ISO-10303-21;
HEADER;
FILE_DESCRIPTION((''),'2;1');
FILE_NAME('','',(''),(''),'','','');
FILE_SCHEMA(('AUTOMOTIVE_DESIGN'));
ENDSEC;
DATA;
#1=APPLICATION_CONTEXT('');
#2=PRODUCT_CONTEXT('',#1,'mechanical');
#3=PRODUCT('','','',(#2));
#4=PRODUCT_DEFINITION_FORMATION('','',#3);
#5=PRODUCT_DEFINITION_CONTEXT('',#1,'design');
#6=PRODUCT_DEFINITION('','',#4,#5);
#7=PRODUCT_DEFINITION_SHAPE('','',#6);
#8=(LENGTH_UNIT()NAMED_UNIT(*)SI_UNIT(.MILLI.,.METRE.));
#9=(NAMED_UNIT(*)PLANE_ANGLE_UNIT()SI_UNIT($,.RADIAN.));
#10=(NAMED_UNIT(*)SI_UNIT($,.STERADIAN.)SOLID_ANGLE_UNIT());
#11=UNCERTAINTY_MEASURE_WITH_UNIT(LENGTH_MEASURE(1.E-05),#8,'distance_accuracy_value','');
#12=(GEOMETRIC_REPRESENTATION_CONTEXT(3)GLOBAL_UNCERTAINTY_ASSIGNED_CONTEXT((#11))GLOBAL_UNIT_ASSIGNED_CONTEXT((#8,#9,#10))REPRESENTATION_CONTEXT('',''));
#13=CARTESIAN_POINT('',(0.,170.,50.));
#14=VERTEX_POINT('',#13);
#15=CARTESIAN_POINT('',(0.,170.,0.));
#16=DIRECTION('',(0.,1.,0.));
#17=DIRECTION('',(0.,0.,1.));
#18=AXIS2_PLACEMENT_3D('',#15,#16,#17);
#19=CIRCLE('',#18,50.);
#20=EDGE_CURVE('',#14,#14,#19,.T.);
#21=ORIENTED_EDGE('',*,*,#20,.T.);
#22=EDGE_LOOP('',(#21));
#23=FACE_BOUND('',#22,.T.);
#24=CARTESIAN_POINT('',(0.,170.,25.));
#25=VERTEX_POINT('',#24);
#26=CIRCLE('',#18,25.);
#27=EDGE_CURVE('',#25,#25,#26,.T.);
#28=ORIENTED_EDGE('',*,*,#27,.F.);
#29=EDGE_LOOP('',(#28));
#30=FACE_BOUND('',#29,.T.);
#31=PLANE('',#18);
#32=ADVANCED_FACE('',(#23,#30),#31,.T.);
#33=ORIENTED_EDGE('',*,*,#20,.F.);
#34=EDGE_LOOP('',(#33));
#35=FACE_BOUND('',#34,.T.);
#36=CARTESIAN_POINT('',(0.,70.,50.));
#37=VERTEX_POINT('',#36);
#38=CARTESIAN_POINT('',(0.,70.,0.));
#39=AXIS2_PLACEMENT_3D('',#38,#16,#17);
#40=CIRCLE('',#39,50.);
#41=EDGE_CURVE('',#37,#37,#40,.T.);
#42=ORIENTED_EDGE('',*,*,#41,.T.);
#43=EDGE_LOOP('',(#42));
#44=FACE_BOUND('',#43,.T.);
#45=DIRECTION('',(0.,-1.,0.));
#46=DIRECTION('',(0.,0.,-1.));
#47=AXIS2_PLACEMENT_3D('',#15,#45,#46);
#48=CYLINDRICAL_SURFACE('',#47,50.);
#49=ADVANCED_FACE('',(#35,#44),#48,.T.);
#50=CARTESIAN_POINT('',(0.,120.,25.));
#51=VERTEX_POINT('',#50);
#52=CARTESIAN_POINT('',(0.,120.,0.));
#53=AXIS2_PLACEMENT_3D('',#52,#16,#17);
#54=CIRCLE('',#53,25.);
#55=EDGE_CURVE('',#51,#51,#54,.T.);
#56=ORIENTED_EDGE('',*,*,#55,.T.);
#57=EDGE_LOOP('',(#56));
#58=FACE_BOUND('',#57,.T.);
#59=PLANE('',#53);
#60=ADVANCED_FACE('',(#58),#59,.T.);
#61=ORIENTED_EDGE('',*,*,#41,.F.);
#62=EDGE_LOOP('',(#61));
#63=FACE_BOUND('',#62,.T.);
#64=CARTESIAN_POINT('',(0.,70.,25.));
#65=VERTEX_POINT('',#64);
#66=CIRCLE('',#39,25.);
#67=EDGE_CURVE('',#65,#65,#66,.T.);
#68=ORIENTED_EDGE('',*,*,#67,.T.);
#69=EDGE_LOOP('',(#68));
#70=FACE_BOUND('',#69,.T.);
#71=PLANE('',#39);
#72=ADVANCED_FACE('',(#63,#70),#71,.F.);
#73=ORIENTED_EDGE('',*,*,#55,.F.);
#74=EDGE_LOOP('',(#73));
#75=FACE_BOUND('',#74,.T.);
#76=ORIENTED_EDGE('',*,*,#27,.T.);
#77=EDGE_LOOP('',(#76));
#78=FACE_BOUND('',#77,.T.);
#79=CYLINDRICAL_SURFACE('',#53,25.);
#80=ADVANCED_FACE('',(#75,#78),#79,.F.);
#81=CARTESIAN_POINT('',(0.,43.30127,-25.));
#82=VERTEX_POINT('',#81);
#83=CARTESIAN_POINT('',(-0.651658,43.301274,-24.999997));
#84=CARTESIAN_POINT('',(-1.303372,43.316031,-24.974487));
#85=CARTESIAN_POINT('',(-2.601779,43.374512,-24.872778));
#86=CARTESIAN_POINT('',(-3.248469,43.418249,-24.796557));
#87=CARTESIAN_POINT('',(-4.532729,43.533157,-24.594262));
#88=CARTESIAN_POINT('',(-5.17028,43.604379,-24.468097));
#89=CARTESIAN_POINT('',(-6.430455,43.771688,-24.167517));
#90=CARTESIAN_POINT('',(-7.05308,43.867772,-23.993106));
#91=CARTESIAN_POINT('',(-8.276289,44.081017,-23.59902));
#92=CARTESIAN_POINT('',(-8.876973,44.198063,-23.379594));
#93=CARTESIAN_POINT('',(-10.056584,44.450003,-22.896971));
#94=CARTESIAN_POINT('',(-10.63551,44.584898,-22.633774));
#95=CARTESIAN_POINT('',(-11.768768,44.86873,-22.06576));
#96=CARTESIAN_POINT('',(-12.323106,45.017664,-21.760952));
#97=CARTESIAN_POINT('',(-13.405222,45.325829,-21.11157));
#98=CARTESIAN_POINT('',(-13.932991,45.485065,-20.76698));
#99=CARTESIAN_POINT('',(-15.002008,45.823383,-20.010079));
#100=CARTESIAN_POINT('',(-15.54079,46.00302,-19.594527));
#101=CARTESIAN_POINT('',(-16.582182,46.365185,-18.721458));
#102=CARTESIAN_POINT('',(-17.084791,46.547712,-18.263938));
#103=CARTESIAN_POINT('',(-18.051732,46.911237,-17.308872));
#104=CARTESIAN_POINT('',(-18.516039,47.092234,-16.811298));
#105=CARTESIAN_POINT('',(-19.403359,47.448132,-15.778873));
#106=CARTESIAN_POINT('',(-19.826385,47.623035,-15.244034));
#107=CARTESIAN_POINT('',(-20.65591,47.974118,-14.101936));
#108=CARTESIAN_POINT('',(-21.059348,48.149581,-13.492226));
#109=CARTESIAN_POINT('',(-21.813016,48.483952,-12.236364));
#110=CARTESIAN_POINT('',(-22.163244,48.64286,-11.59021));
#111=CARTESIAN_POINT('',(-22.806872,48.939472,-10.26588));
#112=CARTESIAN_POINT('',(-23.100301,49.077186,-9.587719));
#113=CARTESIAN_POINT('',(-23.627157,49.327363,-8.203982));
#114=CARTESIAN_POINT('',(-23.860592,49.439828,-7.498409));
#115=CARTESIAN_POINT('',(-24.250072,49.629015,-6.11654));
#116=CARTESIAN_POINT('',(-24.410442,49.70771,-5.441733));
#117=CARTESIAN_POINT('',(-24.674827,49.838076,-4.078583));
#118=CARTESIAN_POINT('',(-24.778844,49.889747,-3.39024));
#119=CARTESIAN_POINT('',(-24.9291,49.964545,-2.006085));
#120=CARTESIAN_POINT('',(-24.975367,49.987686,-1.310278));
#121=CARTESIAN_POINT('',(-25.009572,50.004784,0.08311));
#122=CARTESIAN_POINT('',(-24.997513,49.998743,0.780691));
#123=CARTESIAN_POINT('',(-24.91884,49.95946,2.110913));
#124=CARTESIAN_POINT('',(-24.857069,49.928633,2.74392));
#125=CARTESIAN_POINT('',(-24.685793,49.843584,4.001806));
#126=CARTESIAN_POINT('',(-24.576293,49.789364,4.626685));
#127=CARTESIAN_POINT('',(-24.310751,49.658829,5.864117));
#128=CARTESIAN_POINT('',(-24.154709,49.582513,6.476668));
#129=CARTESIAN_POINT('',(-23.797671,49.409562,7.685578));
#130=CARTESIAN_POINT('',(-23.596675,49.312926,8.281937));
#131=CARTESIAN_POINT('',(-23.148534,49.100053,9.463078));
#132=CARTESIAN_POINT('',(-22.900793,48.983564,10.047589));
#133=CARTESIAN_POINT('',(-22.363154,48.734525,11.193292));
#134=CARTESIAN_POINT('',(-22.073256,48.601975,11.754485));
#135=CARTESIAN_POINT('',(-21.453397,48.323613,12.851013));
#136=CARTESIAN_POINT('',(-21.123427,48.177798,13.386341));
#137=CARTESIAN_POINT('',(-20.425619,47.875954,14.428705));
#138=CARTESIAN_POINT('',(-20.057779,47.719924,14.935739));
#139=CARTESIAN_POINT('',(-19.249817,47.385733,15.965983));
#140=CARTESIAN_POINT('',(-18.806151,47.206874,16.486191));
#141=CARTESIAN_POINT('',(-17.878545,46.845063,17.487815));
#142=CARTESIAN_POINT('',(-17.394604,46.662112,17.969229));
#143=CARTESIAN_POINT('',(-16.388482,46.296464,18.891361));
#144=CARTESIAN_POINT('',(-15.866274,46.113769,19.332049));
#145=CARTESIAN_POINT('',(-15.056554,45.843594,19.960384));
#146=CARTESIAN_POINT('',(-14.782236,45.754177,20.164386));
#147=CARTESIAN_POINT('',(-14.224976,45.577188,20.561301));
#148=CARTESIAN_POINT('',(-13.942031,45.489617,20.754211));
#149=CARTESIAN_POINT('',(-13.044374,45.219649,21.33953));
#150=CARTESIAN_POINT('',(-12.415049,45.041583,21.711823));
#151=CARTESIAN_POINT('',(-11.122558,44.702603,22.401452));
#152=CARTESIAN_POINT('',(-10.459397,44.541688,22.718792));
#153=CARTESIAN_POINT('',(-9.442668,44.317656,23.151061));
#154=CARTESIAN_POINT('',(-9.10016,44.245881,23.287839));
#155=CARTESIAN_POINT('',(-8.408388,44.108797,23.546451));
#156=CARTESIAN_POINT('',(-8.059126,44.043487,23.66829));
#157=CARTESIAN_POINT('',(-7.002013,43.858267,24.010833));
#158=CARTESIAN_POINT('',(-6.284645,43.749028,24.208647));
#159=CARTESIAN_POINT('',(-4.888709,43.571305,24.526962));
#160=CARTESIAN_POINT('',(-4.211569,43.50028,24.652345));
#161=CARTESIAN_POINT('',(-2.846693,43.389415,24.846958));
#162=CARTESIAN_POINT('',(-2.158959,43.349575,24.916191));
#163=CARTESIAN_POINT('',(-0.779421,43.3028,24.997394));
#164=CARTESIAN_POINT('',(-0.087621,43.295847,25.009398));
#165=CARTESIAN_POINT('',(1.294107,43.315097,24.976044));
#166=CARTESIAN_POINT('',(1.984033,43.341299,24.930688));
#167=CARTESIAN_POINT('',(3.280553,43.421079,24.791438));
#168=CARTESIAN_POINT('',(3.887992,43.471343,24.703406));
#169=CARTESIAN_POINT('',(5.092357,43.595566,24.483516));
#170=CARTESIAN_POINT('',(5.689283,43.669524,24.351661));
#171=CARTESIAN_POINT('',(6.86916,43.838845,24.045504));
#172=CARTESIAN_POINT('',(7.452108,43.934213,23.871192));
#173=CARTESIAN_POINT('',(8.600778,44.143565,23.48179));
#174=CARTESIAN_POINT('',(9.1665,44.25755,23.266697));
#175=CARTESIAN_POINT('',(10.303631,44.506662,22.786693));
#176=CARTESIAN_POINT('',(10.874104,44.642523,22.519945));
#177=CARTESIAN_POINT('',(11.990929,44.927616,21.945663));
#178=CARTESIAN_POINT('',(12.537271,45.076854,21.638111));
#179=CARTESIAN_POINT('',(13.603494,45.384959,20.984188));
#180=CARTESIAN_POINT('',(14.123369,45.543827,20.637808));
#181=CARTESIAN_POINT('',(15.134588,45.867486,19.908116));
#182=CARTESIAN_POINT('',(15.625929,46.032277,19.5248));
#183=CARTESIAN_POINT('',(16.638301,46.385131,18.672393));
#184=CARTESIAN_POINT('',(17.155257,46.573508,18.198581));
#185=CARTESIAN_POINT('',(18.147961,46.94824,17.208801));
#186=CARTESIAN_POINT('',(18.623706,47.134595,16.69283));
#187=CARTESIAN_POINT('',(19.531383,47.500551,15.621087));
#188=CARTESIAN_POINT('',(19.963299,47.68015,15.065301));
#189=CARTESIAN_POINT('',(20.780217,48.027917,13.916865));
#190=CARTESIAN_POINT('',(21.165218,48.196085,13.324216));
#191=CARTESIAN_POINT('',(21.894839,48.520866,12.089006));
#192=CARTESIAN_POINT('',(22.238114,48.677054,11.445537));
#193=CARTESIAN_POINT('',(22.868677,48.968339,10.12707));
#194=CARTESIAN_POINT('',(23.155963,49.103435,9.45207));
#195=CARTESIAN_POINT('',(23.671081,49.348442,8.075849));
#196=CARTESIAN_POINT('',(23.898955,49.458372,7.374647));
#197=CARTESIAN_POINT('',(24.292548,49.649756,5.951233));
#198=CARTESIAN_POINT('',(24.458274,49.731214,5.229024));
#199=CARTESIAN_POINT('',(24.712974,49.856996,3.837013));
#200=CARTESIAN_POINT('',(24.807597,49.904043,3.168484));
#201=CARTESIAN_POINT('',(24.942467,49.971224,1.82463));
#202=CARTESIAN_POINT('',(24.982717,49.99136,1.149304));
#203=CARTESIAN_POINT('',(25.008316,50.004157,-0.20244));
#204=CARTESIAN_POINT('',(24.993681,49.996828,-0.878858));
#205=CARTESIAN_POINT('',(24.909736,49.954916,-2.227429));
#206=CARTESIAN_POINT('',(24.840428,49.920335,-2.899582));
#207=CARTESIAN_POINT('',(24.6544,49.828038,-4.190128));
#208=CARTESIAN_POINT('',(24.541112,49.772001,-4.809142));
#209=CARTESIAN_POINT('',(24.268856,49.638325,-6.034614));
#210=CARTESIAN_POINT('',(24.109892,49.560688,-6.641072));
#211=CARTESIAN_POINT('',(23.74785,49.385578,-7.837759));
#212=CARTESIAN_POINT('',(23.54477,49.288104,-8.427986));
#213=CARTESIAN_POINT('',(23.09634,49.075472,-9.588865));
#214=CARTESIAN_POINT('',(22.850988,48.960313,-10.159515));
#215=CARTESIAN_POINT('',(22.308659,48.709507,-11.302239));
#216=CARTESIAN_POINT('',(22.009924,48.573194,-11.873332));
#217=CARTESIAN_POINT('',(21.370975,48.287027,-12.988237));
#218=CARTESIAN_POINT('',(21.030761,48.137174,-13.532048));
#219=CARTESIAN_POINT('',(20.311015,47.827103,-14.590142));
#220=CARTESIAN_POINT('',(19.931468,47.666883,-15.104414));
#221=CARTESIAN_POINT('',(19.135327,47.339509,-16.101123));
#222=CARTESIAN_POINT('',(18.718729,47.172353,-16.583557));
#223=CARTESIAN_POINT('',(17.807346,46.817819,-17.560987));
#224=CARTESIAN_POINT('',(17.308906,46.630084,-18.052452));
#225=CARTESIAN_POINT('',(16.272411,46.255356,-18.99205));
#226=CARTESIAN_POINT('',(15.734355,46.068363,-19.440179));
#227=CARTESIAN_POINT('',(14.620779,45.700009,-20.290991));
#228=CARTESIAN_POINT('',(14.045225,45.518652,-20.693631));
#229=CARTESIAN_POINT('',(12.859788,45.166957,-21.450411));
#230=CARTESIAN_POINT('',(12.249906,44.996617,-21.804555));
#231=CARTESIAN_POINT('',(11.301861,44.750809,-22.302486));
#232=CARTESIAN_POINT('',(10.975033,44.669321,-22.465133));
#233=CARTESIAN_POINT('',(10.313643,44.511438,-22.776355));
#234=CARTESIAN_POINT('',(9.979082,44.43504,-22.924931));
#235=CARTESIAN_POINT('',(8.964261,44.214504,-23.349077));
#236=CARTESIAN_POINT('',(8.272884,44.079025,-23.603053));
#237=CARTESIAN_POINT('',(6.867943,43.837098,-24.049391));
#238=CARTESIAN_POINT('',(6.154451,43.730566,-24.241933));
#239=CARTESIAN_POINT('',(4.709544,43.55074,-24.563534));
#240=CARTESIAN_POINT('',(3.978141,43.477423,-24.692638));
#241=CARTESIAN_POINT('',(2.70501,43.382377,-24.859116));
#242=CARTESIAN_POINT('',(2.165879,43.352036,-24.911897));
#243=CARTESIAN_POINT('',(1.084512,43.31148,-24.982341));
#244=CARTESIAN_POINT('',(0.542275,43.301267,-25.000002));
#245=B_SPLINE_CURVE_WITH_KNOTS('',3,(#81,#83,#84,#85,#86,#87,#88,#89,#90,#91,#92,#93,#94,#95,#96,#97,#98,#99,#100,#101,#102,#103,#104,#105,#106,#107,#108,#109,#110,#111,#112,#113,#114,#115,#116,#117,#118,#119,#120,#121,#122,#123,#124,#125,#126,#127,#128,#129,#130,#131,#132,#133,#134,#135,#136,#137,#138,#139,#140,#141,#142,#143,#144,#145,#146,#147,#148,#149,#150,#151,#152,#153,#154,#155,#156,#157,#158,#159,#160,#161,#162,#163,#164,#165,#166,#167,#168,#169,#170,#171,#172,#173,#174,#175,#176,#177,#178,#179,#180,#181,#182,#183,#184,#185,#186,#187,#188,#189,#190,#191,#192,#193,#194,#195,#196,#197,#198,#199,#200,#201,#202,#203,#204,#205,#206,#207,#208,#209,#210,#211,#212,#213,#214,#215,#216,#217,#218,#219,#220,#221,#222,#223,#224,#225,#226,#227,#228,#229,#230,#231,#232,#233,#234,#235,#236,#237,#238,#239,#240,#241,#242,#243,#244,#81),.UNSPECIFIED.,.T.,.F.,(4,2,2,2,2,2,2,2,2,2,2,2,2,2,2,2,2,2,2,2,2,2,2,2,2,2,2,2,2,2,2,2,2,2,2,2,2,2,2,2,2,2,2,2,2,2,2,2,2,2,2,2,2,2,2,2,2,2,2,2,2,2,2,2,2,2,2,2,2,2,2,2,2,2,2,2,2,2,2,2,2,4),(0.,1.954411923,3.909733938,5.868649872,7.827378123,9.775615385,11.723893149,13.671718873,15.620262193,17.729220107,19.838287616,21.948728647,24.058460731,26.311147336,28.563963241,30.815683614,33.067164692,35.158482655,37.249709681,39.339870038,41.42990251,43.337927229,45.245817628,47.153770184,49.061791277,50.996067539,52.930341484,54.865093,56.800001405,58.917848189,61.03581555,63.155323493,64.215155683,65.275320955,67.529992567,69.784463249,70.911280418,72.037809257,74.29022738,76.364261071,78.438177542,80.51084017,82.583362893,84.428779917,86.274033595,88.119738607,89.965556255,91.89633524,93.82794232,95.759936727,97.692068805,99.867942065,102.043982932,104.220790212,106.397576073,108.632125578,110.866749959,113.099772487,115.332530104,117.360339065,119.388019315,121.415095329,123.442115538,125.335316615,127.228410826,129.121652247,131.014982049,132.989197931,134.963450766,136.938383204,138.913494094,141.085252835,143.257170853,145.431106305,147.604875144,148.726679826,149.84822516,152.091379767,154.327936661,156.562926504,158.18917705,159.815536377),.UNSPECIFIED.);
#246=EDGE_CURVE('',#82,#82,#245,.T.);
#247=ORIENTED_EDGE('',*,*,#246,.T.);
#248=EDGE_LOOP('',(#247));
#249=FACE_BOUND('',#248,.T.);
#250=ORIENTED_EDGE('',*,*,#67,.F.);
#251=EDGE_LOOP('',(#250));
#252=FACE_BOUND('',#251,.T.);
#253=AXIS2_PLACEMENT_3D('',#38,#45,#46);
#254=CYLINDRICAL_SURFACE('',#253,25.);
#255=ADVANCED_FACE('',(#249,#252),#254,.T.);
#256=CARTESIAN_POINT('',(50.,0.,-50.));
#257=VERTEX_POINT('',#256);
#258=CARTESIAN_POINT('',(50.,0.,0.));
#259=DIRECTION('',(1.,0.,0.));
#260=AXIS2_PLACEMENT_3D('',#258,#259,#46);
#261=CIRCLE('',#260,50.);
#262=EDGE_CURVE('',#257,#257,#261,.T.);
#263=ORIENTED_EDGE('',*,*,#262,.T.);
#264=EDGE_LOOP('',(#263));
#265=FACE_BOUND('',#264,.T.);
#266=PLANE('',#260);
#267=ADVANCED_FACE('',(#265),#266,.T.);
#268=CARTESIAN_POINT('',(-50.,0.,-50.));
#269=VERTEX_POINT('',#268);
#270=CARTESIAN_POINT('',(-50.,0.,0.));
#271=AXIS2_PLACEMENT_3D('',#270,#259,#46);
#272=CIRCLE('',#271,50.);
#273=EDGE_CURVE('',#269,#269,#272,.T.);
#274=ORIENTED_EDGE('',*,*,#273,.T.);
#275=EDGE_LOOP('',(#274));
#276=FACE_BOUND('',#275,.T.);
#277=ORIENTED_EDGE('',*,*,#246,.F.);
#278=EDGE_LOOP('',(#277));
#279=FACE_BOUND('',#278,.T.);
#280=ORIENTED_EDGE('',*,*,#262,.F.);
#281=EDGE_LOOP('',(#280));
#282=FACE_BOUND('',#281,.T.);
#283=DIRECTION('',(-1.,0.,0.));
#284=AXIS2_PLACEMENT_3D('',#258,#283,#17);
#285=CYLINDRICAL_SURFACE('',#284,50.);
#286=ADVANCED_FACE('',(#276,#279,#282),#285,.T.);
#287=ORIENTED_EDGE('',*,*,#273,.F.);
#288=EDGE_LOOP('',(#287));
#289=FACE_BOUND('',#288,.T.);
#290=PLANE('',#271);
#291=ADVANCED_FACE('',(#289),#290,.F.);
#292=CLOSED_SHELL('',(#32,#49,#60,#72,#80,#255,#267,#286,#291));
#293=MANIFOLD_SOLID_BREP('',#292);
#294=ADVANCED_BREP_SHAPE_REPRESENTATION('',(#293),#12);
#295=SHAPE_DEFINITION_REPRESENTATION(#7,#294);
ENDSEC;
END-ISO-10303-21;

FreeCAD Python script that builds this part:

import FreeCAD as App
import Part
import Sketcher
Q = App.Units.Quantity

doc = App.newDocument("Part")
body = doc.addObject("PartDesign::Body", "Body")

# Sketch on YZ plane
sketch1 = body.newObject("Sketcher::SketchObject", "Sketch")
sketch1.AttachmentSupport = (doc.getObject("YZ_Plane"), [""])
sketch1.MapMode = "FlatFace"
sketch1.addGeometry(Part.Circle(App.Vector(0, 0, 0), App.Vector(0, 0, 1), 50), False)
sketch1.addConstraint([
    Sketcher.Constraint("Coincident", 0, 3, -1, 1),
    Sketcher.Constraint("Diameter", 0, Q("100 mm")),
])
pad1 = body.newObject("PartDesign::Pad", "Pad")
pad1.Profile = sketch1
pad1.Length = 100
pad1.Midplane = True

# Sketch on XZ plane
sketch2 = body.newObject("Sketcher::SketchObject", "Sketch001")
sketch2.AttachmentSupport = (doc.getObject("XZ_Plane"), [""])
sketch2.MapMode = "FlatFace"
sketch2.addGeometry(Part.Circle(App.Vector(0, 0, 0), App.Vector(0, 0, 1), 25), False)
sketch2.addConstraint([
    Sketcher.Constraint("Coincident", 0, 3, -1, 1),
    Sketcher.Constraint("Diameter", 0, Q("50 mm")),
])
pad2 = body.newObject("PartDesign::Pad", "Pad001")
pad2.Profile = sketch2
pad2.Length = 70
pad2.Reversed = True

# Sketch on XZ plane
sketch3 = body.newObject("Sketcher::SketchObject", "Sketch002")
sketch3.AttachmentSupport = (doc.getObject("XZ_Plane"), [""])
sketch3.MapMode = "FlatFace"
sketch3.AttachmentOffset = App.Placement(App.Vector(0, 0, -70), App.Rotation())
sketch3.addGeometry(Part.Circle(App.Vector(0, 0, 0), App.Vector(0, 0, 1), 50), False)
sketch3.addConstraint([
    Sketcher.Constraint("Coincident", 0, 3, -1, 1),
    Sketcher.Constraint("Diameter", 0, Q("100 mm")),
])
pad3 = body.newObject("PartDesign::Pad", "Pad002")
pad3.Profile = sketch3
pad3.Length = 100
pad3.Reversed = True

# Sketch on XZ plane
sketch4 = body.newObject("Sketcher::SketchObject", "Sketch003")
sketch4.AttachmentSupport = (doc.getObject("XZ_Plane"), [""])
sketch4.MapMode = "FlatFace"
sketch4.AttachmentOffset = App.Placement(App.Vector(0, 0, -120), App.Rotation())
sketch4.addGeometry(Part.Circle(App.Vector(0, 0, 0), App.Vector(0, 0, 1), 25), False)
sketch4.addConstraint([
    Sketcher.Constraint("Coincident", 0, 3, -1, 1),
    Sketcher.Constraint("Diameter", 0, Q("50 mm")),
])
pocket1 = body.newObject("PartDesign::Pocket", "Pocket")
pocket1.Profile = sketch4
pocket1.Length = 50

doc.recompute()
